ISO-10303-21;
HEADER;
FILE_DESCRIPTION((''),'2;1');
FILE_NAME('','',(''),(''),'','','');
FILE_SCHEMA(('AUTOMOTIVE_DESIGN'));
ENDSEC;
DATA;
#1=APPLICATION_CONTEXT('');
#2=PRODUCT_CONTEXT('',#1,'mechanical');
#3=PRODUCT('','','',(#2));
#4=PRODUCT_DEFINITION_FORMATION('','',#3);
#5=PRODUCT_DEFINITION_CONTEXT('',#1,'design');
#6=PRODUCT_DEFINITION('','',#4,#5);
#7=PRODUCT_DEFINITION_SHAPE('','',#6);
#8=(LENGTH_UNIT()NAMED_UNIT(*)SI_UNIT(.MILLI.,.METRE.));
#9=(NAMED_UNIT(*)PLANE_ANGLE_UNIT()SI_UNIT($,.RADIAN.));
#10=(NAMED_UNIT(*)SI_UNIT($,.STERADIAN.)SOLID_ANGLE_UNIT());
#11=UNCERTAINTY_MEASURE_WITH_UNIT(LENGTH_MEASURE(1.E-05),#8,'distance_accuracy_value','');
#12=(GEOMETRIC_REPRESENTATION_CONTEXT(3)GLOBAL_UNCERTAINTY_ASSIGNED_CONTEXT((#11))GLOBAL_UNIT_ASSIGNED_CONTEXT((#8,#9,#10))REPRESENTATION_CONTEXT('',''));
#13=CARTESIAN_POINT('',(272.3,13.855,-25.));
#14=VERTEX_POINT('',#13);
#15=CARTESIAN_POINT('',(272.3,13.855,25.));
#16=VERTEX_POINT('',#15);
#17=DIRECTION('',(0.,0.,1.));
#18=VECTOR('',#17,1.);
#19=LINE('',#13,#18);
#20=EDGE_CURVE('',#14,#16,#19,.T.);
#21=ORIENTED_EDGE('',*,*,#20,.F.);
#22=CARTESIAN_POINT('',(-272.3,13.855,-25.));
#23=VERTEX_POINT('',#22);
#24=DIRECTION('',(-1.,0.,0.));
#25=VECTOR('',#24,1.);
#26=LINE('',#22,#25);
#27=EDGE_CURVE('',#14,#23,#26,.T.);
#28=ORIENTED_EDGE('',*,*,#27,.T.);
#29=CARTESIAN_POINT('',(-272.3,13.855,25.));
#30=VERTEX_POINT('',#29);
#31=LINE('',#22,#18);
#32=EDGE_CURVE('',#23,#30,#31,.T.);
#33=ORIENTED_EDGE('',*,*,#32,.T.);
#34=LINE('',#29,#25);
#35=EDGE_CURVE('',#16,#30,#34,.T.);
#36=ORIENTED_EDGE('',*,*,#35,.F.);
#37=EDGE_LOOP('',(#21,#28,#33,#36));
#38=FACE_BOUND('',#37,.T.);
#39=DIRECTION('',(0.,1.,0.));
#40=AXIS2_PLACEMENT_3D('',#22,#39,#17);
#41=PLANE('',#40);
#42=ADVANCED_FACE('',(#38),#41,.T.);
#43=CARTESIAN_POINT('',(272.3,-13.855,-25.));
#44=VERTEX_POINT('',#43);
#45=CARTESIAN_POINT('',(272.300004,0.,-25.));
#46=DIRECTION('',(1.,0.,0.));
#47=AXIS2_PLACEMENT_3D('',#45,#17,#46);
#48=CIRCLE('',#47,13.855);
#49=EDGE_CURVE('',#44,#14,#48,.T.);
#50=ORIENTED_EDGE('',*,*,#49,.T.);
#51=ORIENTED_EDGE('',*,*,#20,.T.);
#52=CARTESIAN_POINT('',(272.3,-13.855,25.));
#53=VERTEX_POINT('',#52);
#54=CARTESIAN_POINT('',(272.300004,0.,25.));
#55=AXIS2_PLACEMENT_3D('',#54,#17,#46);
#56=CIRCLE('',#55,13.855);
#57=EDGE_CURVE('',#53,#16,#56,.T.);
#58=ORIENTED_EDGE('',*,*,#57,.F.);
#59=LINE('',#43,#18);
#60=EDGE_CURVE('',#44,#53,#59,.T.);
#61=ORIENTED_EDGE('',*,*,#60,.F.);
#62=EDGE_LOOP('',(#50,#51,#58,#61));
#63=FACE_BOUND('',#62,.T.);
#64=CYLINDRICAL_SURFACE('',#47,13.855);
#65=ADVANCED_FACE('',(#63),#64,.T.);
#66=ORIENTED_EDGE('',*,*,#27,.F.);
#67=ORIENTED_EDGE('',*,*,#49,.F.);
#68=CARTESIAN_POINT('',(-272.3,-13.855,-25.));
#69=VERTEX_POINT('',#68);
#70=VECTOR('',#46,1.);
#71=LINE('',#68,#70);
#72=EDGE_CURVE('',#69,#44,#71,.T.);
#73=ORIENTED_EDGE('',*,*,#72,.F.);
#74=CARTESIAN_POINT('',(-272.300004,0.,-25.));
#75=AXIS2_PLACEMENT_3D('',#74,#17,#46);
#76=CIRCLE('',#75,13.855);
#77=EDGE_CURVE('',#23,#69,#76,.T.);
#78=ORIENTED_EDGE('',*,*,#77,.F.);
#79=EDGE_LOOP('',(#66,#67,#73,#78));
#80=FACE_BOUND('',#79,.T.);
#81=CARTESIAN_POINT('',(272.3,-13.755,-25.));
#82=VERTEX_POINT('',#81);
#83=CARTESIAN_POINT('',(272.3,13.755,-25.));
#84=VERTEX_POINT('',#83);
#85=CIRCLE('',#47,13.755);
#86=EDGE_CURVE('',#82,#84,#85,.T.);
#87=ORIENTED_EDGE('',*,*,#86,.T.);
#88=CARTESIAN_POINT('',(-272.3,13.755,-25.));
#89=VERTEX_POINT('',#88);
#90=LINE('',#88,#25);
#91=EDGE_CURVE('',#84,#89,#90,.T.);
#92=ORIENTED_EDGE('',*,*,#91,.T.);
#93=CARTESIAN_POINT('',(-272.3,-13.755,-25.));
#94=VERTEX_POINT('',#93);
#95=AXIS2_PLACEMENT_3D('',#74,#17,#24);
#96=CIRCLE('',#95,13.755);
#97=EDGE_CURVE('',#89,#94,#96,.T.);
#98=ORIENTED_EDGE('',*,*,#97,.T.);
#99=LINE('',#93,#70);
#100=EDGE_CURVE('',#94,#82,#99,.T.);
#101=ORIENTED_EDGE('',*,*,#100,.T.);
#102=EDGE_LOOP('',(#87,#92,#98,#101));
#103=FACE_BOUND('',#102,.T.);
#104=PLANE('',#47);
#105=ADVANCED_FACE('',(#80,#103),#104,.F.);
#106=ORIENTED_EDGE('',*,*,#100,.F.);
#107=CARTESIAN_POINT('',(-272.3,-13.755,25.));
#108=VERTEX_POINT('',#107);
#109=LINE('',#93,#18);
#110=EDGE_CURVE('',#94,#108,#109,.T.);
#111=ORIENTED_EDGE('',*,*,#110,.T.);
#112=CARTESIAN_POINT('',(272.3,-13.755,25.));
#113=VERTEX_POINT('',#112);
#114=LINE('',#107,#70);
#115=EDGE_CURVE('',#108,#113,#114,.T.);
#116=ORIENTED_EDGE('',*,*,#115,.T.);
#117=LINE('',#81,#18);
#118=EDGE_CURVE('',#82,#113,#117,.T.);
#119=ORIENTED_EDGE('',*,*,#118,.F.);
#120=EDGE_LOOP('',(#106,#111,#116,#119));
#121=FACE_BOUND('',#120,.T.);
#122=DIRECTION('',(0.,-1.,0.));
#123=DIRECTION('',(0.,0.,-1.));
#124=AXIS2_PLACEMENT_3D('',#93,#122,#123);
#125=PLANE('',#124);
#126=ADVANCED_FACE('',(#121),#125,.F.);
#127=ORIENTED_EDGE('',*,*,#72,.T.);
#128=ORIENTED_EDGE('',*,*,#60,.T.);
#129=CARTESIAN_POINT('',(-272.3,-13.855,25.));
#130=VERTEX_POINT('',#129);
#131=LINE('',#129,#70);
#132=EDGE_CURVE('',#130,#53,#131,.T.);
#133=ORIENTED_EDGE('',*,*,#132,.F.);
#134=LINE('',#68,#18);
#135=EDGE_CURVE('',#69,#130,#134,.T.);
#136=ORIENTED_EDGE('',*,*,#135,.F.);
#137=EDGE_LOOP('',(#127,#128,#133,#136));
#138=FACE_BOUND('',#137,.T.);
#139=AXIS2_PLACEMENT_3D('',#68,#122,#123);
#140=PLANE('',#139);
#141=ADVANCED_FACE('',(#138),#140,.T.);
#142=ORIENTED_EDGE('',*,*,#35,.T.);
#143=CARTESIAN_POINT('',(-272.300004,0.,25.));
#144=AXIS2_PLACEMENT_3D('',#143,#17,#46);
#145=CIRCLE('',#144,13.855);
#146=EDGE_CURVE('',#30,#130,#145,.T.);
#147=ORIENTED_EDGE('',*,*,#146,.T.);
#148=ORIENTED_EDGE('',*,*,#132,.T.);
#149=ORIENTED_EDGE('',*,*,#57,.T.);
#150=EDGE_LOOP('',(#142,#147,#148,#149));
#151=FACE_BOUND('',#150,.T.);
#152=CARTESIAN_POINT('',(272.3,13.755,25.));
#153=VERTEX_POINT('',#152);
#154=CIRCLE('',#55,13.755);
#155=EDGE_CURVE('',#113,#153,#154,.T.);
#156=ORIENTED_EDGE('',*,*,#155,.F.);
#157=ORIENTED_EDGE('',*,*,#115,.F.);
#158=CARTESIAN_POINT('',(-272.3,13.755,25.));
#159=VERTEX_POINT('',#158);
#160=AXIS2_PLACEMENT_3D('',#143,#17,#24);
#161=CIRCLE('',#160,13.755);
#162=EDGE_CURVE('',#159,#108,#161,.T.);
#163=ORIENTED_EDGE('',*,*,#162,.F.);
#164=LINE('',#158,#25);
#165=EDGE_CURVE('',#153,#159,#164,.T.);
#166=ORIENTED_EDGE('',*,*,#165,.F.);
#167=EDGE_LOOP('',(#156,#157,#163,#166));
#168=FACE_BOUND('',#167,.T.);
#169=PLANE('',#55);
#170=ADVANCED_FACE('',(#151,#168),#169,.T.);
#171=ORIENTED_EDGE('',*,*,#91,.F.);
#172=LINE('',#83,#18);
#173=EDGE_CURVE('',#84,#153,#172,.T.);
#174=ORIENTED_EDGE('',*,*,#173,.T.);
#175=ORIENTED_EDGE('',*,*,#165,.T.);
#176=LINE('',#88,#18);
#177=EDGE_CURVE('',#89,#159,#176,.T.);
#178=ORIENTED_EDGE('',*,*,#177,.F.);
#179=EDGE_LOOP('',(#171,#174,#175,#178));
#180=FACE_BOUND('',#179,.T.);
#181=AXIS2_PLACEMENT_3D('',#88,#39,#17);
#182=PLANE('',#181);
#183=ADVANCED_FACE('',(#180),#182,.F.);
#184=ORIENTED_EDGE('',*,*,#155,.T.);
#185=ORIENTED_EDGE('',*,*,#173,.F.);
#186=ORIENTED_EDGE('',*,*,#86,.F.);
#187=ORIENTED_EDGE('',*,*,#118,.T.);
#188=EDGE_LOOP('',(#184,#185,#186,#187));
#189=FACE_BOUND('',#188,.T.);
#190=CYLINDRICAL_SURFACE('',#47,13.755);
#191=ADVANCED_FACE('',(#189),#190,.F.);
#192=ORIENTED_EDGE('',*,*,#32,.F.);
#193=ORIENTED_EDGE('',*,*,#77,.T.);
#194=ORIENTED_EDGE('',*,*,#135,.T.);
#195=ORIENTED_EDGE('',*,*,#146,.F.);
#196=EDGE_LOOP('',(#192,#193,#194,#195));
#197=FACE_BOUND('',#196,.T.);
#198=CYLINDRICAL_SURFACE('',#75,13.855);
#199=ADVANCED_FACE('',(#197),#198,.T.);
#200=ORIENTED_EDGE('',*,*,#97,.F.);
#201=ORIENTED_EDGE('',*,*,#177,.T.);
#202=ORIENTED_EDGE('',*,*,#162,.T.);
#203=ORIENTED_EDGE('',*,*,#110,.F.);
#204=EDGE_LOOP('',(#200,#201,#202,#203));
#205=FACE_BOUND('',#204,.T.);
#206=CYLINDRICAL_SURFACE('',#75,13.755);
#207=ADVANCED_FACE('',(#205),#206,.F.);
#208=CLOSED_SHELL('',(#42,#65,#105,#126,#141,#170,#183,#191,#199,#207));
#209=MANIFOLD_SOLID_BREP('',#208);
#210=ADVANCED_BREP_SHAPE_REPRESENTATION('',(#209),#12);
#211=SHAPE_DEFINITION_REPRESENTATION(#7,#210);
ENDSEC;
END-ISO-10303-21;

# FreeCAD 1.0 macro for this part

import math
import FreeCAD as App
import Part
import Sketcher
from FreeCAD import Vector

doc = App.newDocument("Part")
body = doc.addObject("PartDesign::Body", "Body")

# Sketch on XY plane
sketch1 = body.newObject("Sketcher::SketchObject", "Sketch")
sketch1.AttachmentSupport = (doc.getObject("XY_Plane"), [""])
sketch1.MapMode = "FlatFace"
sketch1.addGeometry([
    Part.LineSegment(Vector(272, 14, 0), Vector(-272, 14, 0)),  # 0
    Part.ArcOfCircle(Part.Circle(Vector(-272, 0, 0), Vector(0, 0, 1), 14), math.radians(90), math.radians(270)),  # 1
    Part.LineSegment(Vector(-272, -14, 0), Vector(272, -14, 0)),  # 2
    Part.ArcOfCircle(Part.Circle(Vector(272, 0, 0), Vector(0, 0, 1), 14), math.radians(-90), math.radians(90)),  # 3
    Part.LineSegment(Vector(-272, 14, 0), Vector(272, 14, 0)),  # 4
    Part.ArcOfCircle(Part.Circle(Vector(272, 0, 0), Vector(0, 0, 1), 14), math.radians(-90), math.radians(90)),  # 5
    Part.LineSegment(Vector(272, -14, 0), Vector(-272, -14, 0)),  # 6
    Part.ArcOfCircle(Part.Circle(Vector(-272, 0, 0), Vector(0, 0, 1), 14), math.radians(90), math.radians(270)),  # 7
], False)
sketch1.addConstraint([
    Sketcher.Constraint("Tangent", 0, 2, 1, 1),
    Sketcher.Constraint("Tangent", 1, 2, 2, 1),
    Sketcher.Constraint("Tangent", 2, 2, 3, 1),
    Sketcher.Constraint("Tangent", 3, 2, 0, 1),
    Sketcher.Constraint("Tangent", 4, 2, 5, 2),
    Sketcher.Constraint("Tangent", 5, 1, 6, 1),
    Sketcher.Constraint("Tangent", 6, 2, 7, 2),
    Sketcher.Constraint("Tangent", 7, 1, 4, 1),
    Sketcher.Constraint("Horizontal", 0),
    Sketcher.Constraint("Horizontal", 2),
    Sketcher.Constraint("Horizontal", 4),
    Sketcher.Constraint("Horizontal", 6),
    Sketcher.Constraint("Coincident", 5, 3, 3, 3),
    Sketcher.Constraint("Symmetric", 1, 3, 3, 3, -1, 1),
    Sketcher.Constraint("Vertical", 7, 3, 1, 2),
    Sketcher.Constraint("DistanceX", 4, 1, 4, 2, 544.6),
    Sketcher.Constraint("Radius", 1, 13.855),
    Sketcher.Constraint("Radius", 5, 13.755),
])
pad1 = body.newObject("PartDesign::Pad", "Pad")
pad1.Profile = sketch1
pad1.Type = "TwoLengths"
pad1.Length = 25
pad1.Length2 = 25

doc.recompute()
